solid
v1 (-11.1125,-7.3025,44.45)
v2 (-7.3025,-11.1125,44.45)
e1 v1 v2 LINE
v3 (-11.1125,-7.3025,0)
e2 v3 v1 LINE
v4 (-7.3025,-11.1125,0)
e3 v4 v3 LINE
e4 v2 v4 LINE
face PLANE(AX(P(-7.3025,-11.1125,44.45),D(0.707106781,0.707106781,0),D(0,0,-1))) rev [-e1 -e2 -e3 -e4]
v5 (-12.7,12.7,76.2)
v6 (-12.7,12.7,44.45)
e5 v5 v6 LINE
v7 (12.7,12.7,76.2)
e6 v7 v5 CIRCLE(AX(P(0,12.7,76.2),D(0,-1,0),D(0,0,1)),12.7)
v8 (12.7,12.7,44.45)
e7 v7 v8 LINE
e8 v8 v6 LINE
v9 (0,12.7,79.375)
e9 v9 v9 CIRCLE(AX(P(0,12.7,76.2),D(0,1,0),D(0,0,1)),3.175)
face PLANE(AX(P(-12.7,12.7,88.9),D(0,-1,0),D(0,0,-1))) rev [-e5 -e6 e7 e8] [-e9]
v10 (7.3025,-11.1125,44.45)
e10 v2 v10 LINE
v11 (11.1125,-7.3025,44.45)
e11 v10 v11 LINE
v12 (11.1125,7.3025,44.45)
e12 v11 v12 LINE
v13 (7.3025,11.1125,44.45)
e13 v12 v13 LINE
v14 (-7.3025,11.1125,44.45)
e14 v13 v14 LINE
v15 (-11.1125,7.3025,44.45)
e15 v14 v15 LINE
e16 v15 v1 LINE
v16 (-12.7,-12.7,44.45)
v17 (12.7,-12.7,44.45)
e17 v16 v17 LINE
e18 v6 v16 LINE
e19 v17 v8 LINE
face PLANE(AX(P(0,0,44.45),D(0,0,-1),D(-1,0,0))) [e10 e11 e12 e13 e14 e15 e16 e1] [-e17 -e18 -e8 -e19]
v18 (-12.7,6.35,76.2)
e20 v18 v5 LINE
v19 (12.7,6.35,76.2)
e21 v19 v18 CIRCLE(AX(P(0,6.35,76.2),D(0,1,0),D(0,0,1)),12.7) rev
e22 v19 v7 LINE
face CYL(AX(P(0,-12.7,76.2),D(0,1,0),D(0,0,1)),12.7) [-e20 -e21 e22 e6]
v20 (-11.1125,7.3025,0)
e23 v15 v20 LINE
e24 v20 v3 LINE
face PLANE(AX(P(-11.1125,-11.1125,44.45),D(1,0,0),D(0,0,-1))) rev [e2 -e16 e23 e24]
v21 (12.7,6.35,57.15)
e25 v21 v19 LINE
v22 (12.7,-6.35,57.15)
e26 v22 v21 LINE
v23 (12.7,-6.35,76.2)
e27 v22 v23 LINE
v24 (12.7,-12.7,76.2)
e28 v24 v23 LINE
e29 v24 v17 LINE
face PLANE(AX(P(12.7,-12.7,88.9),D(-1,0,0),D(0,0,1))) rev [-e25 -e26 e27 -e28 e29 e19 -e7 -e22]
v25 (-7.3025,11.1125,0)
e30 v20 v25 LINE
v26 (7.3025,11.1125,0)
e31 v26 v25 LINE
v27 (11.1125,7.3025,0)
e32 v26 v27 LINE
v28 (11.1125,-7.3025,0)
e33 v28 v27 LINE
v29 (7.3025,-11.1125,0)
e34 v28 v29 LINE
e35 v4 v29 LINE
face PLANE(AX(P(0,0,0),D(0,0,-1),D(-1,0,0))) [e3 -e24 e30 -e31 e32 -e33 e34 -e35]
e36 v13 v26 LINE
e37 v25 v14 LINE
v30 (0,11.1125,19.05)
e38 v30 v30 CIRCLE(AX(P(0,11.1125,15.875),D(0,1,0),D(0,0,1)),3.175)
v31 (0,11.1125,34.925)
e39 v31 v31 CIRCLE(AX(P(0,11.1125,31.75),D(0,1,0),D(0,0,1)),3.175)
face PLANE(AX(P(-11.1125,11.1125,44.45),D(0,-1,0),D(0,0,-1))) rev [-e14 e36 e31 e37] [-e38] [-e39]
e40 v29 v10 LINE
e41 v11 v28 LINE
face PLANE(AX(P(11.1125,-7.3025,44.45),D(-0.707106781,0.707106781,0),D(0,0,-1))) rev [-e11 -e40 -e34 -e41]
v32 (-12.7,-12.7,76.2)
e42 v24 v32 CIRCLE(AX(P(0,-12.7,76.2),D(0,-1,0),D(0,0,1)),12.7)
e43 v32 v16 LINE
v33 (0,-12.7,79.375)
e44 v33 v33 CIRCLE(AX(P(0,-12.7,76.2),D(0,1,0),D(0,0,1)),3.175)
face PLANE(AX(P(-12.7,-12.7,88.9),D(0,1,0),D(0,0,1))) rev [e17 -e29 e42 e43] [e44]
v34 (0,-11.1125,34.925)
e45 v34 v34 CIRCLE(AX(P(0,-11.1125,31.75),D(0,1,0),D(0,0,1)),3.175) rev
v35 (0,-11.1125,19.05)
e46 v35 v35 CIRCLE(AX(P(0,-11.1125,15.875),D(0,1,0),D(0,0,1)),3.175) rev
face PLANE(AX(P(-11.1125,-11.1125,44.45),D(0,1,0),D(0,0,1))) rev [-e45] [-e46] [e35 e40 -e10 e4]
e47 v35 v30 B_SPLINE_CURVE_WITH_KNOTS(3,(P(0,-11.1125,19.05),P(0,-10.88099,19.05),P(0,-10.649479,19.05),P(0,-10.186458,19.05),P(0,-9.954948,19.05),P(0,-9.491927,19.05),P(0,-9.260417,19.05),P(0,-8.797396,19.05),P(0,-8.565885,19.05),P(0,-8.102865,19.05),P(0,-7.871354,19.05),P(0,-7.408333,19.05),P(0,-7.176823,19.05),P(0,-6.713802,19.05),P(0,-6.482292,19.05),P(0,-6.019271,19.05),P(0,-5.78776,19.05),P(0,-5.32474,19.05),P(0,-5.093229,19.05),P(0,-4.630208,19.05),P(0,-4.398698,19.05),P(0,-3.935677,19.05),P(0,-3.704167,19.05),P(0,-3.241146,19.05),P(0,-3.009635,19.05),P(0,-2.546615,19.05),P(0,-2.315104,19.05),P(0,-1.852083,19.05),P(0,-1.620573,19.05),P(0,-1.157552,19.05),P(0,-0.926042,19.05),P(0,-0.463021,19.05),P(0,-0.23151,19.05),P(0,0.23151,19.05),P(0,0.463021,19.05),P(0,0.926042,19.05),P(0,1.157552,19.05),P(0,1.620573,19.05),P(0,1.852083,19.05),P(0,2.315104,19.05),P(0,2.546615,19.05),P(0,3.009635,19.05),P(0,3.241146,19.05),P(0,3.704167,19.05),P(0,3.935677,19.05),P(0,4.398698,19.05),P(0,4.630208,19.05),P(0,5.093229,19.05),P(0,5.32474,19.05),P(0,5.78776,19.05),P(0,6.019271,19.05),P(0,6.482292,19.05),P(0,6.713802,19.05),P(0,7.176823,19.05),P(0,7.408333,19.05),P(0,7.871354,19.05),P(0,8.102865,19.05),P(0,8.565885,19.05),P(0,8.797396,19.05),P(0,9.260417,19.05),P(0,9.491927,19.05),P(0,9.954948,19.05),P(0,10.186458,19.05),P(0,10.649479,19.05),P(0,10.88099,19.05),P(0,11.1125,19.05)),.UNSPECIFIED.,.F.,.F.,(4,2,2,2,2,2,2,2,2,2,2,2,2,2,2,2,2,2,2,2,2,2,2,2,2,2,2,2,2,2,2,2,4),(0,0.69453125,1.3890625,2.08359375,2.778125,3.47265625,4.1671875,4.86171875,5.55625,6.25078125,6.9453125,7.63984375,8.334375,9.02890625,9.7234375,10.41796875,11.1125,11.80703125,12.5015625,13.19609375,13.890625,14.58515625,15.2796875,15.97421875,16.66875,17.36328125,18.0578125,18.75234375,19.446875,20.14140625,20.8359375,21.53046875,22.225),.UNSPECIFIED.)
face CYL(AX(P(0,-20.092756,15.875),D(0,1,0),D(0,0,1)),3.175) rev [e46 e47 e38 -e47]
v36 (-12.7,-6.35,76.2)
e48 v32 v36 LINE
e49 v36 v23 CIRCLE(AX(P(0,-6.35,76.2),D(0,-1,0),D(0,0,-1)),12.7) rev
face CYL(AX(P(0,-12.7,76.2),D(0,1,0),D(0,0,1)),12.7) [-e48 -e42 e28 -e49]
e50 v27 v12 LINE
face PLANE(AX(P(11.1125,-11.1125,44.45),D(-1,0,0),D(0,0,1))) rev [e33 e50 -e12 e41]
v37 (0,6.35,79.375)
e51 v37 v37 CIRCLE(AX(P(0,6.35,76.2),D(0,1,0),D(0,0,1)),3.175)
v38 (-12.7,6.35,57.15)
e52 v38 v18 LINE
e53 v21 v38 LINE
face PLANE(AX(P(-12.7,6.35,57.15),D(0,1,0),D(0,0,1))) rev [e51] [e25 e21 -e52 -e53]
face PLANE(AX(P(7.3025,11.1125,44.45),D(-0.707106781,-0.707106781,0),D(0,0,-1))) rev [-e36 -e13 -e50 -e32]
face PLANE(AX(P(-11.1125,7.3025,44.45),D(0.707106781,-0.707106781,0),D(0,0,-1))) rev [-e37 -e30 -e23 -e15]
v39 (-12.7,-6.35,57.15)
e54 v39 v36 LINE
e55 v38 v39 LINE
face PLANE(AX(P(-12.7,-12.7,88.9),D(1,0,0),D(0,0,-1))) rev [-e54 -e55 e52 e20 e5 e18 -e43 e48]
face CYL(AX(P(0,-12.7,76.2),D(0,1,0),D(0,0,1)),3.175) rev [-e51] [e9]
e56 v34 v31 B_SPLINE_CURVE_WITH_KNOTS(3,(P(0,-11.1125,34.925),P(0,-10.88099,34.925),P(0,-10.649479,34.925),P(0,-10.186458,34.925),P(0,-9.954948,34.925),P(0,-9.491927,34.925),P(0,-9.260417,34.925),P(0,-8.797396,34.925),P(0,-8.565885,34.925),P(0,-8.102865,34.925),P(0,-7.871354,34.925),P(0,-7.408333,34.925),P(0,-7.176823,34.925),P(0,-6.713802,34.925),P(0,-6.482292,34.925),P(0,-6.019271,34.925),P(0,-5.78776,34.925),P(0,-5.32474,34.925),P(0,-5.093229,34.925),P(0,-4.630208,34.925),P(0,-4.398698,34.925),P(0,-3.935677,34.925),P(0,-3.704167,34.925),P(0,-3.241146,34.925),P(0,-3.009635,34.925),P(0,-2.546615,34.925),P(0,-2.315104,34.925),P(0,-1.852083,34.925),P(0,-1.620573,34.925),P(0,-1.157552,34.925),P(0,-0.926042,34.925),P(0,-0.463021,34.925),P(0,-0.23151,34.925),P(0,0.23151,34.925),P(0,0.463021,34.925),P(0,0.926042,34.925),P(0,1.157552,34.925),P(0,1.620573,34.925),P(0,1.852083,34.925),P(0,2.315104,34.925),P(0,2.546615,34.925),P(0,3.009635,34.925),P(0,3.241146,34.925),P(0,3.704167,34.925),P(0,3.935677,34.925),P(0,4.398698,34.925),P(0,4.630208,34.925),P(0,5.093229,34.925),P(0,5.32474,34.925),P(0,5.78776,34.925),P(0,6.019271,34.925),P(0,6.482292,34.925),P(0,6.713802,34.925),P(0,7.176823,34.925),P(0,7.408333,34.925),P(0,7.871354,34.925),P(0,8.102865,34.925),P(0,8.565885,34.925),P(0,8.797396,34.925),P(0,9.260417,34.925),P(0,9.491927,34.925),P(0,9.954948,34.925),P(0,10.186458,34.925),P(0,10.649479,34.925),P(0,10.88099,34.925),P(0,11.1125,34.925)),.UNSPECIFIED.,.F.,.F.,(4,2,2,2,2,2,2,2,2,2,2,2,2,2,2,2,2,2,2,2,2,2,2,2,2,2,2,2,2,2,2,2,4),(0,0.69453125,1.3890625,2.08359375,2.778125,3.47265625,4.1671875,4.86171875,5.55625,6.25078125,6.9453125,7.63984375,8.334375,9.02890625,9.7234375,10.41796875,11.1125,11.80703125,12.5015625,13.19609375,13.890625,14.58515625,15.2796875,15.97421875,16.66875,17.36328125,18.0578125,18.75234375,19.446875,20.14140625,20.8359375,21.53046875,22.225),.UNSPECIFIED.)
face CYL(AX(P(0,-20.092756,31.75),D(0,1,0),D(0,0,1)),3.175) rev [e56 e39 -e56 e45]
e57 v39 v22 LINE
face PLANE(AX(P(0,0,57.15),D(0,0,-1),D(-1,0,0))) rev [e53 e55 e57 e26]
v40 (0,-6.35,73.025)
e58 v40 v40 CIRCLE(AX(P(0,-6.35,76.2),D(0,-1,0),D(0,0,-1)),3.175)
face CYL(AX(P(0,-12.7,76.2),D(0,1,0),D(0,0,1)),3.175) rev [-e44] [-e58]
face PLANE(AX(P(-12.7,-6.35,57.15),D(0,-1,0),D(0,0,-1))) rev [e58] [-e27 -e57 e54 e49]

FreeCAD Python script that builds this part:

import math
import FreeCAD as App
import Part
import Sketcher
Q = App.Units.Quantity


def edges_at(feature, points):
    """Names of the edges that pass closest to the given points."""
    edges = feature.Shape.Edges
    near = lambda p: min(range(len(edges)), key=lambda i: edges[i].distToShape(Part.Vertex(*p))[0])
    return sorted({f"Edge{near(p) + 1}" for p in points})


def add_polygon(sketch, points):
    """Adds a closed chain of lines whose ends are joined by coincident constraints."""
    first, n = sketch.GeometryCount, len(points)
    for a, b in zip(points, points[1:] + points[:1]):
        sketch.addGeometry(Part.LineSegment(App.Vector(*a, 0), App.Vector(*b, 0)), False)
    for i in range(n):
        sketch.addConstraint(Sketcher.Constraint("Coincident", first + i, 2, first + (i + 1) % n, 1))

doc = App.newDocument("Part")
body = doc.addObject("PartDesign::Body", "Body")

sketch1 = body.newObject("Sketcher::SketchObject", "Sketch")
sketch1.AttachmentSupport = (doc.getObject("XY_Plane"), [""])
sketch1.MapMode = "FlatFace"
add_polygon(sketch1, [(-11, 11), (-11, -11), (11, -11), (11, 11)])
sketch1.addConstraint(Sketcher.Constraint("Vertical", 0))
sketch1.addConstraint(Sketcher.Constraint("Horizontal", 1))
sketch1.addConstraint(Sketcher.Constraint("Vertical", 2))
sketch1.addConstraint(Sketcher.Constraint("Horizontal", 3))
sketch1.addConstraint(Sketcher.Constraint("Symmetric", 0, 2, 2, 2, -1, 1))
sketch1.addConstraint(Sketcher.Constraint("Equal", 3, 0))
sketch1.addConstraint(Sketcher.Constraint("DistanceX", 1, 1, 1, 2, Q("0.875 in")))
pad1 = body.newObject("PartDesign::Pad", "Pad")
pad1.Profile = sketch1
pad1.Length = Q("1.75 in")
doc.recompute()

chamfer = body.newObject("PartDesign::Chamfer", "Chamfer")
chamfer.Base = (pad1, edges_at(pad1, [
    (11.113, -11.113, 22.225),
    (-11.113, -11.113, 22.225),
    (-11.113, 11.113, 22.225),
    (11.113, 11.113, 22.225),
]))
chamfer.Size = Q("0.15 in")

sketch2 = body.newObject("Sketcher::SketchObject", "Sketch001")
sketch2.AttachmentSupport = (doc.getObject("XY_Plane"), [""])
sketch2.MapMode = "FlatFace"
sketch2.AttachmentOffset = App.Placement(App.Vector(0, 0, 1.75 * 25.4), App.Rotation())
add_polygon(sketch2, [(-13, 13), (-13, -13), (13, -13), (13, 13)])
sketch2.addConstraint(Sketcher.Constraint("Vertical", 0))
sketch2.addConstraint(Sketcher.Constraint("Horizontal", 1))
sketch2.addConstraint(Sketcher.Constraint("Vertical", 2))
sketch2.addConstraint(Sketcher.Constraint("Horizontal", 3))
sketch2.addConstraint(Sketcher.Constraint("Symmetric", 0, 2, 2, 2, -1, 1))
sketch2.addConstraint(Sketcher.Constraint("Equal", 3, 0))
sketch2.addConstraint(Sketcher.Constraint("DistanceX", 1, 1, 1, 2, Q("1 in")))
pad2 = body.newObject("PartDesign::Pad", "Pad001")
pad2.Profile = sketch2
pad2.Length = Q("1.75 in")

sketch3 = body.newObject("Sketcher::SketchObject", "Sketch002")
sketch3.AttachmentSupport = (doc.getObject("XY_Plane"), [""])
sketch3.MapMode = "FlatFace"
sketch3.AttachmentOffset = App.Placement(App.Vector(0, 0, 3.5 * 25.4), App.Rotation())
add_polygon(sketch3, [(-13, 6), (-13, -6), (13, -6), (13, 6)])
sketch3.addConstraint(Sketcher.Constraint("Vertical", 0))
sketch3.addConstraint(Sketcher.Constraint("Horizontal", 1))
sketch3.addConstraint(Sketcher.Constraint("Vertical", 2))
sketch3.addConstraint(Sketcher.Constraint("Horizontal", 3))
sketch3.addConstraint(Sketcher.Constraint("Symmetric", 0, 2, 2, 2, -1, 1))
sketch3.addConstraint(Sketcher.Constraint("DistanceX", 1, 1, 1, 2, Q("1 in")))
sketch3.addConstraint(Sketcher.Constraint("DistanceY", 0, 2, 0, 1, Q("0.5 in")))
pocket1 = body.newObject("PartDesign::Pocket", "Pocket")
pocket1.Profile = sketch3
pocket1.Length = Q("1.25 in")

sketch4 = body.newObject("Sketcher::SketchObject", "Sketch003")
sketch4.AttachmentSupport = (doc.getObject("XZ_Plane"), [""])
sketch4.MapMode = "FlatFace"
sketch4.AttachmentOffset = App.Placement(App.Vector(0, 0, -0.5 * 25.4), App.Rotation())
sketch4.addGeometry(Part.Circle(App.Vector(0, 76.2, 0), App.Vector(0, 0, 1), 3.2), False)
sketch4.addGeometry(Part.LineSegment(App.Vector(-12.7, 76.2, 0), App.Vector(-12.7, 95.2, 0)), False)
sketch4.addGeometry(Part.LineSegment(App.Vector(-12.7, 95.2, 0), App.Vector(12.7, 95.2, 0)), False)
sketch4.addGeometry(Part.LineSegment(App.Vector(12.7, 95.2, 0), App.Vector(12.7, 76.2, 0)), False)
sketch4.addGeometry(Part.ArcOfCircle(Part.Circle(App.Vector(0, 76.2, 0), App.Vector(0, 0, 1), 12.7), math.radians(0), math.radians(180)), False)
sketch4.addConstraint(Sketcher.Constraint("Coincident", 1, 2, 2, 1))
sketch4.addConstraint(Sketcher.Constraint("Coincident", 2, 2, 3, 1))
sketch4.addConstraint(Sketcher.Constraint("Tangent", 3, 2, 4, 1))
sketch4.addConstraint(Sketcher.Constraint("Tangent", 4, 2, 1, 1))
sketch4.addConstraint(Sketcher.Constraint("Vertical", 1))
sketch4.addConstraint(Sketcher.Constraint("Horizontal", 2))
sketch4.addConstraint(Sketcher.Constraint("Vertical", 3))
sketch4.addConstraint(Sketcher.Constraint("Coincident", 4, 3, 0, 3))
sketch4.addConstraint(Sketcher.Constraint("PointOnObject", 0, 3, -2))
sketch4.addConstraint(Sketcher.Constraint("Radius", 4, Q("0.5 in")))
sketch4.addConstraint(Sketcher.Constraint("Diameter", 0, Q("0.25 in")))
sketch4.addConstraint(Sketcher.Constraint("DistanceY", -1, 1, 0, 3, Q("3 in")))
sketch4.addConstraint(Sketcher.Constraint("DistanceY", 1, 1, 1, 2, Q("0.75 in")))
pocket2 = body.newObject("PartDesign::Pocket", "Pocket001")
pocket2.Profile = sketch4
pocket2.Type = "ThroughAll"
pocket2.Reversed = True

sketch5 = body.newObject("Sketcher::SketchObject", "Sketch004")
sketch5.AttachmentSupport = (doc.getObject("XZ_Plane"), [""])
sketch5.MapMode = "FlatFace"
sketch5.AttachmentOffset = App.Placement(App.Vector(0, 0, -0.4375 * 25.4), App.Rotation())
sketch5.addGeometry(Part.Circle(App.Vector(0, 31.8, 0), App.Vector(0, 0, 1), 3.2), False)
sketch5.addGeometry(Part.Circle(App.Vector(0, 15.9, 0), App.Vector(0, 0, 1), 3.2), False)
sketch5.addConstraint(Sketcher.Constraint("Equal", 0, 1))
sketch5.addConstraint(Sketcher.Constraint("PointOnObject", 0, 3, -2))
sketch5.addConstraint(Sketcher.Constraint("PointOnObject", 1, 3, -2))
sketch5.addConstraint(Sketcher.Constraint("Diameter", 0, Q("0.25 in")))
sketch5.addConstraint(Sketcher.Constraint("DistanceY", -1, 1, 0, 3, Q("1.25 in")))
sketch5.addConstraint(Sketcher.Constraint("DistanceY", -1, 1, 1, 3, Q("0.625 in")))
pocket3 = body.newObject("PartDesign::Pocket", "Pocket002")
pocket3.Profile = sketch5
pocket3.Length = Q("0.875 in")
pocket3.Reversed = True

doc.recompute()
